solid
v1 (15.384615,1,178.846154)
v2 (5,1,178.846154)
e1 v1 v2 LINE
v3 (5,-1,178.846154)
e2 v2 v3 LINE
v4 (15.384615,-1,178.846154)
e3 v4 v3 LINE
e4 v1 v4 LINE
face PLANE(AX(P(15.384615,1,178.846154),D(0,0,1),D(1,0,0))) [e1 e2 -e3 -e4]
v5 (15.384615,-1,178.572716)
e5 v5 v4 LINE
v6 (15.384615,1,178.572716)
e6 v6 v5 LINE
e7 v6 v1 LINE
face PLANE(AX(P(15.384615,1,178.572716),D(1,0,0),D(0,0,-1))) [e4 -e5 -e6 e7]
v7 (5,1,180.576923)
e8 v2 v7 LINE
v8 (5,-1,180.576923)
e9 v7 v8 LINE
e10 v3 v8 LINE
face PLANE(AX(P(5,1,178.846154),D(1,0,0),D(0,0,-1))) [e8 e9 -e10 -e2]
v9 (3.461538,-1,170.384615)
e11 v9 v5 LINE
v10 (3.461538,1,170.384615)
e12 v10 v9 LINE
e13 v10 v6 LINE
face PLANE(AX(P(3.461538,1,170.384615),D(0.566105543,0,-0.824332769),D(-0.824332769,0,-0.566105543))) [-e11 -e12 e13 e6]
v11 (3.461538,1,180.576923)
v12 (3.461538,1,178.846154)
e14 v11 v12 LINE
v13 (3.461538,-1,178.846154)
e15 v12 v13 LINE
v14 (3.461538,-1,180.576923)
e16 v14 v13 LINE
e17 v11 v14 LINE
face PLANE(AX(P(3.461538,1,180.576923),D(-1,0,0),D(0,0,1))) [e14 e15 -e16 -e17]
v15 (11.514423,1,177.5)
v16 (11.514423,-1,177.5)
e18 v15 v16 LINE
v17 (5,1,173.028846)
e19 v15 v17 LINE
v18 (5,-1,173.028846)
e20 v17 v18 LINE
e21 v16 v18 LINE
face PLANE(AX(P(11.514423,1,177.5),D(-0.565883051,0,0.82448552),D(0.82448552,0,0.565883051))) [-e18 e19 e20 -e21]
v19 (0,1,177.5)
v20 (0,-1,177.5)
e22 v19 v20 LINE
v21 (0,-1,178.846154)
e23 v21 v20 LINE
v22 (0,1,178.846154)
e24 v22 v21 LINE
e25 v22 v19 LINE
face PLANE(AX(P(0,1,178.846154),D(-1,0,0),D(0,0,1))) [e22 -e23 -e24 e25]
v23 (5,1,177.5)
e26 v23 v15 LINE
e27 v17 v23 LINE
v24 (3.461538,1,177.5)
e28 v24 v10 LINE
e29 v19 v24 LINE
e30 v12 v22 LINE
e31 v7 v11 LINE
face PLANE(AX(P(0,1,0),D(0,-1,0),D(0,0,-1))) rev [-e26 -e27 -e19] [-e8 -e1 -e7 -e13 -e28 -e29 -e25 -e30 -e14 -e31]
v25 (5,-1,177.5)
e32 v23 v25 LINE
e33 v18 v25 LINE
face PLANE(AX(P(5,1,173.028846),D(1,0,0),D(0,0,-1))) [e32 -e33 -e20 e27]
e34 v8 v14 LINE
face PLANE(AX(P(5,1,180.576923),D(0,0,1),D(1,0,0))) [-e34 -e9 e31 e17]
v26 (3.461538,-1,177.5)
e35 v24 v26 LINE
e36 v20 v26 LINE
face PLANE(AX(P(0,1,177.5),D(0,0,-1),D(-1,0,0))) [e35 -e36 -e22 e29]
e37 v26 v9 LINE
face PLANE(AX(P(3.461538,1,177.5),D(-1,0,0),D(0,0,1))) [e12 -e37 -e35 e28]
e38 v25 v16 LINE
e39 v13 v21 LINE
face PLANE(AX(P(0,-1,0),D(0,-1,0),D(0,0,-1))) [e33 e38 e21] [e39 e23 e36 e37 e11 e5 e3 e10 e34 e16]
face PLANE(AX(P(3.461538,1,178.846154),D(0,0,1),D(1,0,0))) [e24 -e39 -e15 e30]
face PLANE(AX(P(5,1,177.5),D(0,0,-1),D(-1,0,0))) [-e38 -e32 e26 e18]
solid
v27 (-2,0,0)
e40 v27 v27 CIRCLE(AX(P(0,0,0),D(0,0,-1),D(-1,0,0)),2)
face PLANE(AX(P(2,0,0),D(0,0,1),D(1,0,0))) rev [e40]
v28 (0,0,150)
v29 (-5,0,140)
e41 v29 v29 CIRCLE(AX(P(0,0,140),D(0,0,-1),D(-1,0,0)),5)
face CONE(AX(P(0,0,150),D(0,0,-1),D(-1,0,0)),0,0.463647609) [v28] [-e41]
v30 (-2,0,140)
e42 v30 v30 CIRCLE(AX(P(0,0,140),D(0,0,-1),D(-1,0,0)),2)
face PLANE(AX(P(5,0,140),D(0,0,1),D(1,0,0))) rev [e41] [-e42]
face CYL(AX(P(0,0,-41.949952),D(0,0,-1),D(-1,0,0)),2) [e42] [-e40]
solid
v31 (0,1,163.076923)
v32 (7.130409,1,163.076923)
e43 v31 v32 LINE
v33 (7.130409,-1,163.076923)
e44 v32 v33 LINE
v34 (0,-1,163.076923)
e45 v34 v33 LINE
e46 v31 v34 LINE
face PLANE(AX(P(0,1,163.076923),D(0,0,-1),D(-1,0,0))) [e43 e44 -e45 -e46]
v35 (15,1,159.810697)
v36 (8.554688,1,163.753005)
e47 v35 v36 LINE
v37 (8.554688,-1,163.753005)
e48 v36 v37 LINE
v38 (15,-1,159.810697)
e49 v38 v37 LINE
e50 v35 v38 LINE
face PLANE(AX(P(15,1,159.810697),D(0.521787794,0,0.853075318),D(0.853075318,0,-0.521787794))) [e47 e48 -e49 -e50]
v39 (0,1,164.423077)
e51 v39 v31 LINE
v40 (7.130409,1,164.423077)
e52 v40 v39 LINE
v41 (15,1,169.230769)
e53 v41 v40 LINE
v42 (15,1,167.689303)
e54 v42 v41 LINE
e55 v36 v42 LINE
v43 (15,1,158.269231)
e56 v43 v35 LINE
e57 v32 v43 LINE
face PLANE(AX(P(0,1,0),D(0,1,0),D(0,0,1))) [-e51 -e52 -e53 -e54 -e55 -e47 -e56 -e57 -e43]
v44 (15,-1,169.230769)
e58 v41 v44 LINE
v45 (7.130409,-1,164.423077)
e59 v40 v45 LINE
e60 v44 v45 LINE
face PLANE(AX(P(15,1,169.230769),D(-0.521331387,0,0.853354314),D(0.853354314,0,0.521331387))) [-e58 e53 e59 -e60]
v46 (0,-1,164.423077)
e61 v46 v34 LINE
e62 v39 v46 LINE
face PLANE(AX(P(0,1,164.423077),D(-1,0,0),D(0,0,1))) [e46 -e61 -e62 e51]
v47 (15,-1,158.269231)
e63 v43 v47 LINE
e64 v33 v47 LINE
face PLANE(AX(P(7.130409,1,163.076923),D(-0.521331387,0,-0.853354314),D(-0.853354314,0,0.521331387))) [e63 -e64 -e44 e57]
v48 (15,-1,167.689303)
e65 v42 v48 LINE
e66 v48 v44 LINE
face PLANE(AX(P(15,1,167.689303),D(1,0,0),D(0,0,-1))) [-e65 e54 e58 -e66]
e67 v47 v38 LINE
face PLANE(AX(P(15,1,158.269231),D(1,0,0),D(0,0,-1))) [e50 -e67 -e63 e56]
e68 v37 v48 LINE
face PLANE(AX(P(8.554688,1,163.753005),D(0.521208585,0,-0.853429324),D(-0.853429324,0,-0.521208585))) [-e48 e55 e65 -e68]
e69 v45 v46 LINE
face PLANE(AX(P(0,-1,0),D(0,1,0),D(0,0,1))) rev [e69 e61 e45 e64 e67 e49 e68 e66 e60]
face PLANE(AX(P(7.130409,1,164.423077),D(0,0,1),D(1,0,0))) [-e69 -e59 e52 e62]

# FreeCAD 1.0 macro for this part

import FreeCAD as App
import Part
import Sketcher

V = App.Vector

doc = App.newDocument("Part")
body = doc.addObject("PartDesign::Body", "Body")

sketch1 = body.newObject("Sketcher::SketchObject", "Sketch")
sketch1.AttachmentSupport = (doc.getObject("XZ_Plane"), [""])
sketch1.MapMode = "FlatFace"
sketch1.addGeometry(Part.LineSegment(V(0, 150, 0), V(5, 140, 0)), False)
sketch1.addGeometry(Part.LineSegment(V(5, 140, 0), V(2, 140, 0)), False)
sketch1.addGeometry(Part.LineSegment(V(2, 140, 0), V(2, 0, 0)), False)
sketch1.addGeometry(Part.LineSegment(V(2, 0, 0), V(0, 0, 0)), False)
sketch1.addGeometry(Part.LineSegment(V(0, 0, 0), V(0, 150, 0)), False)
sketch1.addConstraint(Sketcher.Constraint("Coincident", 0, 2, 1, 1))
sketch1.addConstraint(Sketcher.Constraint("Coincident", 1, 2, 2, 1))
sketch1.addConstraint(Sketcher.Constraint("Coincident", 2, 2, 3, 1))
sketch1.addConstraint(Sketcher.Constraint("Coincident", 3, 2, 4, 1))
sketch1.addConstraint(Sketcher.Constraint("Coincident", 4, 2, 0, 1))
sketch1.addConstraint(Sketcher.Constraint("Horizontal", 1))
sketch1.addConstraint(Sketcher.Constraint("Vertical", 2))
sketch1.addConstraint(Sketcher.Constraint("Horizontal", 3))
sketch1.addConstraint(Sketcher.Constraint("Vertical", 4))
sketch1.addConstraint(Sketcher.Constraint("Coincident", 3, 2, -1, 1))
sketch1.addConstraint(Sketcher.Constraint("DistanceX", 1, 2, 1, 1, 3.0))
sketch1.addConstraint(Sketcher.Constraint("DistanceX", 3, 2, 3, 1, 2.0))
sketch1.addConstraint(Sketcher.Constraint("DistanceY", 2, 2, 2, 1, 140.0))
sketch1.addConstraint(Sketcher.Constraint("DistanceY", 4, 1, 4, 2, 150.0))
revolution = body.newObject("PartDesign::Revolution", "Revolution")
revolution.Profile = sketch1
revolution.ReferenceAxis = (sketch1, ["V_Axis"])
revolution.Angle = 360
body2 = doc.addObject("PartDesign::Body", "Body001")

sketch2 = body2.newObject("Sketcher::SketchObject", "Sketch001")
sketch2.AttachmentSupport = (doc.getObject("XZ_Plane001"), [""])
sketch2.MapMode = "FlatFace"
sketch2.addGeometry(Part.LineSegment(V(15, 159.8, 0), V(15, 158.3, 0)), False)
sketch2.addGeometry(Part.LineSegment(V(15, 158.3, 0), V(7.1, 163.1, 0)), False)
sketch2.addGeometry(Part.LineSegment(V(7.1, 163.1, 0), V(0, 163.1, 0)), False)
sketch2.addGeometry(Part.LineSegment(V(0, 163.1, 0), V(0, 164.4, 0)), False)
sketch2.addGeometry(Part.LineSegment(V(0, 164.4, 0), V(7.1, 164.4, 0)), False)
sketch2.addGeometry(Part.LineSegment(V(7.1, 164.4, 0), V(15, 169.2, 0)), False)
sketch2.addGeometry(Part.LineSegment(V(15, 169.2, 0), V(15, 167.7, 0)), False)
sketch2.addGeometry(Part.LineSegment(V(15, 167.7, 0), V(8.6, 163.8, 0)), False)
sketch2.addGeometry(Part.LineSegment(V(8.6, 163.8, 0), V(15, 159.8, 0)), False)
sketch2.addConstraint(Sketcher.Constraint("Coincident", 0, 2, 1, 1))
sketch2.addConstraint(Sketcher.Constraint("Coincident", 1, 2, 2, 1))
sketch2.addConstraint(Sketcher.Constraint("Coincident", 2, 2, 3, 1))
sketch2.addConstraint(Sketcher.Constraint("Coincident", 3, 2, 4, 1))
sketch2.addConstraint(Sketcher.Constraint("Coincident", 4, 2, 5, 1))
sketch2.addConstraint(Sketcher.Constraint("Coincident", 5, 2, 6, 1))
sketch2.addConstraint(Sketcher.Constraint("Coincident", 6, 2, 7, 1))
sketch2.addConstraint(Sketcher.Constraint("Coincident", 7, 2, 8, 1))
sketch2.addConstraint(Sketcher.Constraint("Coincident", 8, 2, 0, 1))
sketch2.addConstraint(Sketcher.Constraint("Vertical", 0))
sketch2.addConstraint(Sketcher.Constraint("Horizontal", 2))
sketch2.addConstraint(Sketcher.Constraint("Vertical", 3))
sketch2.addConstraint(Sketcher.Constraint("Horizontal", 4))
sketch2.addConstraint(Sketcher.Constraint("Vertical", 6))
sketch2.addConstraint(Sketcher.Constraint("PointOnObject", 2, 2, -2))
sketch2.addConstraint(Sketcher.Constraint("Vertical", 1, 2, 4, 2))
sketch2.addConstraint(Sketcher.Constraint("Vertical", 0, 2, 5, 2))
sketch2.addConstraint(Sketcher.Constraint("Equal", 0, 6))
sketch2.addConstraint(Sketcher.Constraint("Equal", 1, 5))
sketch2.addConstraint(Sketcher.Constraint("DistanceX", -1, 1, 0, 2, 15.0))
sketch2.addConstraint(Sketcher.Constraint("DistanceX", 2, 2, 2, 1, 7.130409))
sketch2.addConstraint(Sketcher.Constraint("DistanceY", 7, 2, 6, 2, 3.936298))
sketch2.addConstraint(Sketcher.Constraint("Distance", 1, 9.221951))
sketch2.addConstraint(Sketcher.Constraint("Distance", 7, 7.552251))
sketch2.addConstraint(Sketcher.Constraint("DistanceY", 0, 2, 0, 1, 1.541466))
sketch2.addConstraint(Sketcher.Constraint("DistanceY", 3, 1, 3, 2, 1.346154))
sketch2.addConstraint(Sketcher.Constraint("DistanceY", -1, 1, 0, 2, 158.269231))
pad1 = body2.newObject("PartDesign::Pad", "Pad")
pad1.Profile = sketch2
pad1.Type = "TwoLengths"
pad1.Length = 1
pad1.Length2 = 1
pad1.Reversed = True
body3 = doc.addObject("PartDesign::Body", "Body002")

sketch3 = body3.newObject("Sketcher::SketchObject", "Sketch002")
sketch3.AttachmentSupport = (doc.getObject("XZ_Plane002"), [""])
sketch3.MapMode = "FlatFace"
sketch3.addGeometry(Part.LineSegment(V(15.38, 178.85, 0), V(15.38, 178.57, 0)), False)
sketch3.addGeometry(Part.LineSegment(V(15.38, 178.57, 0), V(3.46, 170.38, 0)), False)
sketch3.addGeometry(Part.LineSegment(V(3.46, 170.38, 0), V(3.46, 177.5, 0)), False)
sketch3.addGeometry(Part.LineSegment(V(3.46, 177.5, 0), V(0, 177.5, 0)), False)
sketch3.addGeometry(Part.LineSegment(V(0, 177.5, 0), V(0, 178.85, 0)), False)
sketch3.addGeometry(Part.LineSegment(V(0, 178.85, 0), V(3.46, 178.85, 0)), False)
sketch3.addGeometry(Part.LineSegment(V(3.46, 178.85, 0), V(3.46, 180.58, 0)), False)
sketch3.addGeometry(Part.LineSegment(V(3.46, 180.58, 0), V(5, 180.58, 0)), False)
sketch3.addGeometry(Part.LineSegment(V(5, 180.58, 0), V(5, 178.85, 0)), False)
sketch3.addGeometry(Part.LineSegment(V(5, 178.85, 0), V(15.38, 178.85, 0)), False)
sketch3.addGeometry(Part.LineSegment(V(5, 177.5, 0), V(5, 173.03, 0)), False)
sketch3.addGeometry(Part.LineSegment(V(5, 173.03, 0), V(11.51, 177.5, 0)), False)
sketch3.addGeometry(Part.LineSegment(V(11.51, 177.5, 0), V(5, 177.5, 0)), False)
sketch3.addConstraint(Sketcher.Constraint("Coincident", 0, 2, 1, 1))
sketch3.addConstraint(Sketcher.Constraint("Coincident", 1, 2, 2, 1))
sketch3.addConstraint(Sketcher.Constraint("Coincident", 2, 2, 3, 1))
sketch3.addConstraint(Sketcher.Constraint("Coincident", 3, 2, 4, 1))
sketch3.addConstraint(Sketcher.Constraint("Coincident", 4, 2, 5, 1))
sketch3.addConstraint(Sketcher.Constraint("Coincident", 5, 2, 6, 1))
sketch3.addConstraint(Sketcher.Constraint("Coincident", 6, 2, 7, 1))
sketch3.addConstraint(Sketcher.Constraint("Coincident", 7, 2, 8, 1))
sketch3.addConstraint(Sketcher.Constraint("Coincident", 8, 2, 9, 1))
sketch3.addConstraint(Sketcher.Constraint("Coincident", 9, 2, 0, 1))
sketch3.addConstraint(Sketcher.Constraint("Coincident", 10, 2, 11, 1))
sketch3.addConstraint(Sketcher.Constraint("Coincident", 11, 2, 12, 1))
sketch3.addConstraint(Sketcher.Constraint("Coincident", 12, 2, 10, 1))
sketch3.addConstraint(Sketcher.Constraint("Vertical", 0))
sketch3.addConstraint(Sketcher.Constraint("Vertical", 2))
sketch3.addConstraint(Sketcher.Constraint("Horizontal", 3))
sketch3.addConstraint(Sketcher.Constraint("Vertical", 4))
sketch3.addConstraint(Sketcher.Constraint("Horizontal", 5))
sketch3.addConstraint(Sketcher.Constraint("Vertical", 6))
sketch3.addConstraint(Sketcher.Constraint("Horizontal", 7))
sketch3.addConstraint(Sketcher.Constraint("Vertical", 8))
sketch3.addConstraint(Sketcher.Constraint("Horizontal", 9))
sketch3.addConstraint(Sketcher.Constraint("Vertical", 10))
sketch3.addConstraint(Sketcher.Constraint("Horizontal", 12))
sketch3.addConstraint(Sketcher.Constraint("PointOnObject", 3, 2, -2))
sketch3.addConstraint(Sketcher.Constraint("Horizontal", 5, 2, 8, 2))
sketch3.addConstraint(Sketcher.Constraint("Horizontal", 3, 2, 11, 2))
sketch3.addConstraint(Sketcher.Constraint("Vertical", 2, 2, 5, 2))
sketch3.addConstraint(Sketcher.Constraint("Vertical", 8, 2, 10, 2))
sketch3.addConstraint(Sketcher.Constraint("DistanceX", -1, 1, 7, 2, 5.0))
sketch3.addConstraint(Sketcher.Constraint("DistanceY", -1, 1, 2, 2, 177.5))
sketch3.addConstraint(Sketcher.Constraint("DistanceX", 3, 2, 3, 1, 3.461538))
sketch3.addConstraint(Sketcher.Constraint("DistanceY", 6, 1, 6, 2, 1.730769))
sketch3.addConstraint(Sketcher.Constraint("DistanceY", 1, 2, 0, 2, 8.188101))
sketch3.addConstraint(Sketcher.Constraint("DistanceX", 9, 1, 9, 2, 10.384615))
sketch3.addConstraint(Sketcher.Constraint("DistanceX", 12, 2, 12, 1, 6.514423))
sketch3.addConstraint(Sketcher.Constraint("DistanceY", 0, 2, 0, 1, 0.273438))
sketch3.addConstraint(Sketcher.Constraint("DistanceY", 2, 1, 2, 2, 7.115385))
sketch3.addConstraint(Sketcher.Constraint("DistanceY", 10, 2, 10, 1, 4.471154))
pad2 = body3.newObject("PartDesign::Pad", "Pad001")
pad2.Profile = sketch3
pad2.Type = "TwoLengths"
pad2.Length = 1
pad2.Length2 = 1
pad2.Reversed = True

doc.recompute()
